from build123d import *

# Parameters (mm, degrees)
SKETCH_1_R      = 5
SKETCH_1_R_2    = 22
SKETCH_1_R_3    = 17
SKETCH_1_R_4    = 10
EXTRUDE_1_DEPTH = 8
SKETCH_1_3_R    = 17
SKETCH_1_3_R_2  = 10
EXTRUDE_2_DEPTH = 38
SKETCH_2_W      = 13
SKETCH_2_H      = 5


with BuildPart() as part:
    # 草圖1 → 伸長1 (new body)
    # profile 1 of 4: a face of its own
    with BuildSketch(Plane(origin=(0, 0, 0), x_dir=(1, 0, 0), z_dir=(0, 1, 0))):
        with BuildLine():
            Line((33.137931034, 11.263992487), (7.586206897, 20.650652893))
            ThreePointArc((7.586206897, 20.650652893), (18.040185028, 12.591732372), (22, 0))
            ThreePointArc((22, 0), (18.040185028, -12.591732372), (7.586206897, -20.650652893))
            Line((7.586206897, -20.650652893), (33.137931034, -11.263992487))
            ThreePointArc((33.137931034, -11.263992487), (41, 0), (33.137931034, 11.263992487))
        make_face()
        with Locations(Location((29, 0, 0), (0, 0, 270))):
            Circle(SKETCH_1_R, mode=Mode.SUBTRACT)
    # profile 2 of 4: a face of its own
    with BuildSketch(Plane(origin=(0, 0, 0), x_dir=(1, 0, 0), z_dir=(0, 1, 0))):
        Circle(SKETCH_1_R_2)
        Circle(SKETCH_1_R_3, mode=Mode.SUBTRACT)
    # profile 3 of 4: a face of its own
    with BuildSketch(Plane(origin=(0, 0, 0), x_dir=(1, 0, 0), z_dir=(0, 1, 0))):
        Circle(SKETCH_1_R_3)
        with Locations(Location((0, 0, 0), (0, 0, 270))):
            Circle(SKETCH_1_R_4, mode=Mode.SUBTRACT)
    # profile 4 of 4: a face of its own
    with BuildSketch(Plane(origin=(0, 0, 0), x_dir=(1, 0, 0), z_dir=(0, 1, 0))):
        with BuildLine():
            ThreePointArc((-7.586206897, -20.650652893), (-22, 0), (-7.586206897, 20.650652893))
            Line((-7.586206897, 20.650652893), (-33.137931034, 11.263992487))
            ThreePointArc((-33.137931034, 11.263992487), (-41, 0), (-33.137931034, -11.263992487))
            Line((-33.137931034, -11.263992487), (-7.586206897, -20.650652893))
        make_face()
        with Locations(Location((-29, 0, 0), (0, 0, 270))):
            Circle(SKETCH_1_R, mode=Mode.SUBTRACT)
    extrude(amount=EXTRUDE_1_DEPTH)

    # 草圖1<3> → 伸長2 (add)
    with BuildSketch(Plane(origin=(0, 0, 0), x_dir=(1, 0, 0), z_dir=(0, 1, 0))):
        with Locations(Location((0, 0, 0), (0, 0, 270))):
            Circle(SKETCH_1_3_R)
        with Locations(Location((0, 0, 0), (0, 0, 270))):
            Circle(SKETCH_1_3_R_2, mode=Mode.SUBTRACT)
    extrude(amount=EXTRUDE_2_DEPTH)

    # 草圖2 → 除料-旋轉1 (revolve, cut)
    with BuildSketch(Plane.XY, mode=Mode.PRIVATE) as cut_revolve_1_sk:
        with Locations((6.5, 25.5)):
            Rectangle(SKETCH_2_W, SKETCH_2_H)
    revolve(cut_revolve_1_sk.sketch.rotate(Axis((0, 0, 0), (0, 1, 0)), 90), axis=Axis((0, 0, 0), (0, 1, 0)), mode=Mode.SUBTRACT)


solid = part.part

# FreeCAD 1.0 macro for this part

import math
import FreeCAD as App
import Part
import Sketcher


def add_polygon(sketch, points):
    """Adds a closed chain of lines whose ends are joined by coincident constraints."""
    first, n = sketch.GeometryCount, len(points)
    for a, b in zip(points, points[1:] + points[:1]):
        sketch.addGeometry(Part.LineSegment(App.Vector(*a, 0), App.Vector(*b, 0)), False)
    for i in range(n):
        sketch.addConstraint(Sketcher.Constraint("Coincident", first + i, 2, first + (i + 1) % n, 1))

doc = App.newDocument("Part")
body = doc.addObject("PartDesign::Body", "Body")

# Sketch on XZ plane
sketch1 = body.newObject("Sketcher::SketchObject", "Sketch")
sketch1.AttachmentSupport = (doc.getObject("XZ_Plane"), [""])
sketch1.MapMode = "FlatFace"
sketch1.addGeometry(Part.LineSegment(App.Vector(33.137931, -11.263992, 0), App.Vector(7.586207, -20.650653, 0)), False)
sketch1.addGeometry(Part.ArcOfCircle(Part.Circle(App.Vector(0, 0, 0), App.Vector(0, 0, 1), 22), math.radians(-110.171271), math.radians(-69.828729)), False)
sketch1.addGeometry(Part.LineSegment(App.Vector(-7.586207, -20.650653, 0), App.Vector(-33.137931, -11.263992, 0)), False)
sketch1.addGeometry(Part.ArcOfCircle(Part.Circle(App.Vector(-29, 0, 0), App.Vector(0, 0, 1), 12), math.radians(110.171271), math.radians(249.828729)), False)
sketch1.addGeometry(Part.LineSegment(App.Vector(-33.137931, 11.263992, 0), App.Vector(-7.586207, 20.650653, 0)), False)
sketch1.addGeometry(Part.ArcOfCircle(Part.Circle(App.Vector(0, 0, 0), App.Vector(0, 0, 1), 22), math.radians(69.828729), math.radians(110.171271)), False)
sketch1.addGeometry(Part.LineSegment(App.Vector(7.586207, 20.650653, 0), App.Vector(33.137931, 11.263992, 0)), False)
sketch1.addGeometry(Part.ArcOfCircle(Part.Circle(App.Vector(29, 0, 0), App.Vector(0, 0, 1), 12), math.radians(-69.828729), math.radians(69.828729)), False)
sketch1.addGeometry(Part.Circle(App.Vector(29, 0, 0), App.Vector(0, 0, 1), 5), False)
sketch1.addGeometry(Part.Circle(App.Vector(0, 0, 0), App.Vector(0, 0, 1), 10), False)
sketch1.addGeometry(Part.Circle(App.Vector(-29, 0, 0), App.Vector(0, 0, 1), 5), False)
sketch1.addConstraint(Sketcher.Constraint("Tangent", 0, 2, 1, 2))
sketch1.addConstraint(Sketcher.Constraint("Tangent", 1, 1, 2, 1))
sketch1.addConstraint(Sketcher.Constraint("Tangent", 2, 2, 3, 2))
sketch1.addConstraint(Sketcher.Constraint("Tangent", 3, 1, 4, 1))
sketch1.addConstraint(Sketcher.Constraint("Tangent", 4, 2, 5, 2))
sketch1.addConstraint(Sketcher.Constraint("Tangent", 5, 1, 6, 1))
sketch1.addConstraint(Sketcher.Constraint("Tangent", 6, 2, 7, 2))
sketch1.addConstraint(Sketcher.Constraint("Tangent", 7, 1, 0, 1))
sketch1.addConstraint(Sketcher.Constraint("Coincident", 1, 3, -1, 1))
sketch1.addConstraint(Sketcher.Constraint("Coincident", 5, 3, -1, 1))
sketch1.addConstraint(Sketcher.Constraint("Coincident", 9, 3, -1, 1))
sketch1.addConstraint(Sketcher.Constraint("Coincident", 8, 3, 7, 3))
sketch1.addConstraint(Sketcher.Constraint("Coincident", 10, 3, 3, 3))
sketch1.addConstraint(Sketcher.Constraint("Equal", 1, 5))
sketch1.addConstraint(Sketcher.Constraint("Equal", 3, 7))
sketch1.addConstraint(Sketcher.Constraint("Equal", 8, 10))
sketch1.addConstraint(Sketcher.Constraint("Symmetric", 3, 3, 7, 3, -1, 1))
sketch1.addConstraint(Sketcher.Constraint("PointOnObject", 3, 3, -1))
sketch1.addConstraint(Sketcher.Constraint("Diameter", 8, 10.0))
sketch1.addConstraint(Sketcher.Constraint("Diameter", 9, 20.0))
sketch1.addConstraint(Sketcher.Constraint("Radius", 1, 22.0))
sketch1.addConstraint(Sketcher.Constraint("Radius", 3, 12.0))
sketch1.addConstraint(Sketcher.Constraint("DistanceX", 3, 3, -1, 1, 29.0))
pad1 = body.newObject("PartDesign::Pad", "Pad")
pad1.Profile = sketch1
pad1.Length = 8
pad1.Reversed = True

# Sketch on XZ plane
sketch2 = body.newObject("Sketcher::SketchObject", "Sketch001")
sketch2.AttachmentSupport = (doc.getObject("XZ_Plane"), [""])
sketch2.MapMode = "FlatFace"
sketch2.addGeometry(Part.Circle(App.Vector(0, 0, 0), App.Vector(0, 0, 1), 17), False)
sketch2.addGeometry(Part.Circle(App.Vector(0, 0, 0), App.Vector(0, 0, 1), 10), False)
sketch2.addConstraint(Sketcher.Constraint("Coincident", 0, 3, -1, 1))
sketch2.addConstraint(Sketcher.Constraint("Coincident", 1, 3, -1, 1))
sketch2.addConstraint(Sketcher.Constraint("Diameter", 0, 34.0))
sketch2.addConstraint(Sketcher.Constraint("Diameter", 1, 20.0))
pad2 = body.newObject("PartDesign::Pad", "Pad001")
pad2.Profile = sketch2
pad2.Length = 38
pad2.Reversed = True

# Sketch on XY plane
sketch3 = body.newObject("Sketcher::SketchObject", "Sketch002")
sketch3.AttachmentSupport = (doc.getObject("XY_Plane"), [""])
sketch3.MapMode = "FlatFace"
add_polygon(sketch3, [(0, 28), (0, 23), (13, 23), (13, 28)])  # lines 0-3
sketch3.addConstraint(Sketcher.Constraint("Vertical", 0))
sketch3.addConstraint(Sketcher.Constraint("Horizontal", 1))
sketch3.addConstraint(Sketcher.Constraint("Vertical", 2))
sketch3.addConstraint(Sketcher.Constraint("Horizontal", 3))
sketch3.addConstraint(Sketcher.Constraint("PointOnObject", 0, 2, -2))
sketch3.addConstraint(Sketcher.Constraint("DistanceX", 1, 1, 1, 2, 13.0))
sketch3.addConstraint(Sketcher.Constraint("DistanceY", 0, 2, 0, 1, 5.0))
sketch3.addConstraint(Sketcher.Constraint("DistanceY", -1, 1, 0, 2, 23.0))
groove = body.newObject("PartDesign::Groove", "Groove")
groove.Profile = sketch3
groove.ReferenceAxis = (sketch3, ["V_Axis"])
groove.Angle = 360

doc.recompute()
